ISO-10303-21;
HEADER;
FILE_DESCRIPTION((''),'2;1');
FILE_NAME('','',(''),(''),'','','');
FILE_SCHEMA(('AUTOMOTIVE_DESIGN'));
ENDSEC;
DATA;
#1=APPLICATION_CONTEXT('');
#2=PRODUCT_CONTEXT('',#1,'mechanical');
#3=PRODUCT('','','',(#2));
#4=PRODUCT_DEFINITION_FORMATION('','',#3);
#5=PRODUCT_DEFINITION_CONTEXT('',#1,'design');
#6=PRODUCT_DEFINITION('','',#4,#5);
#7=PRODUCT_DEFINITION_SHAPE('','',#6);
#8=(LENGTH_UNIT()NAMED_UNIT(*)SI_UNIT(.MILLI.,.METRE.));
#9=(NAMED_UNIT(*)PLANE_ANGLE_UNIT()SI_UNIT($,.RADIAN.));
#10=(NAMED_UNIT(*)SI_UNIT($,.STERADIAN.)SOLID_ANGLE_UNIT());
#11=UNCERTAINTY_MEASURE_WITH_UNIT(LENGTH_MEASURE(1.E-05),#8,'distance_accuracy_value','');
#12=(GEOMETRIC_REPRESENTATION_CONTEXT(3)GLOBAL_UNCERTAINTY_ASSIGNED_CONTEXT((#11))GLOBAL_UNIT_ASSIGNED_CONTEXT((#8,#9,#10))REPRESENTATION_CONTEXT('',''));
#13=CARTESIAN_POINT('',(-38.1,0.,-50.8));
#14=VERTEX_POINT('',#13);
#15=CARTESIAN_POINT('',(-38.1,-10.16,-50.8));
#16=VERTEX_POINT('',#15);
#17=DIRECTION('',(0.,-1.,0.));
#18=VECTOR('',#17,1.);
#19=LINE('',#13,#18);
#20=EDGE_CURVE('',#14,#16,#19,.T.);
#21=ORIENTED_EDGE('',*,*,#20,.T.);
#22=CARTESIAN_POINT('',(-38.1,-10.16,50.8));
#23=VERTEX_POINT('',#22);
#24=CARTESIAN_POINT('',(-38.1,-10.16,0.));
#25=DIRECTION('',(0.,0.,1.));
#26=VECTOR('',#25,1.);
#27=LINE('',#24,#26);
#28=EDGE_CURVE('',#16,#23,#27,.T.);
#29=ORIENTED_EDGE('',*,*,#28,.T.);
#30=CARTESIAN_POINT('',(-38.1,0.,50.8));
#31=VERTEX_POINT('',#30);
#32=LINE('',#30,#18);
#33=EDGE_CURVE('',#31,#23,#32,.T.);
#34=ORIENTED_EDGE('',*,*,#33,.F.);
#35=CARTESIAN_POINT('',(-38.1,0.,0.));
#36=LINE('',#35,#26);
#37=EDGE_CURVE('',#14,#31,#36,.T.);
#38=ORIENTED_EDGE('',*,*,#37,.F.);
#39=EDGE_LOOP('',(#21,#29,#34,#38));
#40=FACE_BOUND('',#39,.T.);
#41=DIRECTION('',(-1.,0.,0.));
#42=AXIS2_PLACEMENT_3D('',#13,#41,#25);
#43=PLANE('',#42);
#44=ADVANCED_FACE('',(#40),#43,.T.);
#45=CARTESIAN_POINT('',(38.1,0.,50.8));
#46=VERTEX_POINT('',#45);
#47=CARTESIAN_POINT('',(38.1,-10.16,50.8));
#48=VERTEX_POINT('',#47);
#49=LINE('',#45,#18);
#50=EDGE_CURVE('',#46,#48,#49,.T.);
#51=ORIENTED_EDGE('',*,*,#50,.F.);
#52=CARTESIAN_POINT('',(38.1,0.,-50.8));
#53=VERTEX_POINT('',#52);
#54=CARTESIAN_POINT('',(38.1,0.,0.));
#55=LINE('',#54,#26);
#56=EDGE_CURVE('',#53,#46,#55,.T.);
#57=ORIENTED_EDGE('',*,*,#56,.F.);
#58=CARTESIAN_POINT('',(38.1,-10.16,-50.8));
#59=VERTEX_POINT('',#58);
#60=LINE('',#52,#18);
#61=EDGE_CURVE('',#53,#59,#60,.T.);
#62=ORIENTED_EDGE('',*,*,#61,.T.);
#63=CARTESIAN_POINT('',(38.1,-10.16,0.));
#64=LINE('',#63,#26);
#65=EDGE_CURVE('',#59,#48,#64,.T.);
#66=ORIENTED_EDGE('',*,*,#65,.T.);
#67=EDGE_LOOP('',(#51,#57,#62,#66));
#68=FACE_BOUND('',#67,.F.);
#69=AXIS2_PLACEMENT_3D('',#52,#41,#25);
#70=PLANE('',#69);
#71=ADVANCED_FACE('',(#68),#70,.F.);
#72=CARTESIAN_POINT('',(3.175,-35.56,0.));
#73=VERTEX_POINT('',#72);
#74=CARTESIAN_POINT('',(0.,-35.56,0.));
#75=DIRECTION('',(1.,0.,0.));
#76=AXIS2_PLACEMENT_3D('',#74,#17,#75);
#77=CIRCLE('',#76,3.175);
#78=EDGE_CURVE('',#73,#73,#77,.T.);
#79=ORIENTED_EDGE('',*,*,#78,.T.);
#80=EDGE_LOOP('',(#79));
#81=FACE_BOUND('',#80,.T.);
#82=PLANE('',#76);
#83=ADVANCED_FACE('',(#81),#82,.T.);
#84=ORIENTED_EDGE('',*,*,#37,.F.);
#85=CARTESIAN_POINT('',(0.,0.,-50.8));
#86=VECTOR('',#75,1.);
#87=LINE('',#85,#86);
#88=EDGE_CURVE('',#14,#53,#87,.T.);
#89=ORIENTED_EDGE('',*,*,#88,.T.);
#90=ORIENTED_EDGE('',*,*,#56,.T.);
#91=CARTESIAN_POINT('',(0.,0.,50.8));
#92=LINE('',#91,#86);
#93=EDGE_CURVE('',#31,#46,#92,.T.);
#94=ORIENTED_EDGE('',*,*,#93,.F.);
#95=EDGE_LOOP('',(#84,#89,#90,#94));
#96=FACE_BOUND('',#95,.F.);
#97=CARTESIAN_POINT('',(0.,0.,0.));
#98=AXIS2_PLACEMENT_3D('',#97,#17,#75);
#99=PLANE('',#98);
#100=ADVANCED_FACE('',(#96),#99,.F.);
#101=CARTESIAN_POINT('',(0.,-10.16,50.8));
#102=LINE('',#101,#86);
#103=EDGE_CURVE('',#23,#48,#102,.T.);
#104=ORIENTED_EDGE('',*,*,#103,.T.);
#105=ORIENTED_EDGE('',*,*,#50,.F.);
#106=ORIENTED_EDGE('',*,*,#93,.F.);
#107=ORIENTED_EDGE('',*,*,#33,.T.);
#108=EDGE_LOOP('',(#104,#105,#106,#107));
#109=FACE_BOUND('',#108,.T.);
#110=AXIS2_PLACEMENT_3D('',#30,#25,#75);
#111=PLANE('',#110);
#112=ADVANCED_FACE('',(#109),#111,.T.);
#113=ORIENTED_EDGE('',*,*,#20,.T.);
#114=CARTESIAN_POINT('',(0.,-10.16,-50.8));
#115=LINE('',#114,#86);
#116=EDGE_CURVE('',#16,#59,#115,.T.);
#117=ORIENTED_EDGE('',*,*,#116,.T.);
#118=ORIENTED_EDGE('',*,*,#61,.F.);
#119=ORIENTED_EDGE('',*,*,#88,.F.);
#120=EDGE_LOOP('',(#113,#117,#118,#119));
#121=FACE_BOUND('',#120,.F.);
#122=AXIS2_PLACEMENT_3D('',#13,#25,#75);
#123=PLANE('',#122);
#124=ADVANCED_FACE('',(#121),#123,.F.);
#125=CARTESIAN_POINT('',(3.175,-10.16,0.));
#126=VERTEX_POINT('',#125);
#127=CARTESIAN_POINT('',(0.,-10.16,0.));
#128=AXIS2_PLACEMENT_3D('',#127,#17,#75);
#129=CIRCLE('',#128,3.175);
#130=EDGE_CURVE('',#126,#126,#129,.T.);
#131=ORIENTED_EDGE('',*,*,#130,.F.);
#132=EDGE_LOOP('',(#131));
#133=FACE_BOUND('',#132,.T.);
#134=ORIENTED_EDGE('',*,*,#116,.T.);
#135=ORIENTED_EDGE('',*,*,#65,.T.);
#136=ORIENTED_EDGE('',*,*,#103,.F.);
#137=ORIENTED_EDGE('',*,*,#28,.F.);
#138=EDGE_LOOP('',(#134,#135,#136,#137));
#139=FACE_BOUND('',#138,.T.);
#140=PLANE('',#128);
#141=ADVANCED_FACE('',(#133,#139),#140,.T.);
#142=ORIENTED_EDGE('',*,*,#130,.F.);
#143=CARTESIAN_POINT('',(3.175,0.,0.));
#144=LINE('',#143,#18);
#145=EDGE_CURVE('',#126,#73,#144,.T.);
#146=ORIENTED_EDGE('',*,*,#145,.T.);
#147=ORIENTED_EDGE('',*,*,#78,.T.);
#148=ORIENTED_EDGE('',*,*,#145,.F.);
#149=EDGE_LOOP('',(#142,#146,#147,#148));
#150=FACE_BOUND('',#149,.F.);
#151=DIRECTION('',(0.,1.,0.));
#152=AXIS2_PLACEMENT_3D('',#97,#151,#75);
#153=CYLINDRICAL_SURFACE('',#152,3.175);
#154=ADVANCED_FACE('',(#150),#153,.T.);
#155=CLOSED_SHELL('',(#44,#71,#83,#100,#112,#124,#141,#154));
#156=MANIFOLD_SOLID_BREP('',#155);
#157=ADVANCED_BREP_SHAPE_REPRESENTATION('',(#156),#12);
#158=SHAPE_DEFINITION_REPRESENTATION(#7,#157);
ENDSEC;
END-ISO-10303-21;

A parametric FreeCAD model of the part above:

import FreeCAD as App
import Part
import Sketcher
from FreeCAD import Vector
Q = App.Units.Quantity


def add_polygon(sketch, points):
    """Adds a closed chain of lines whose ends are joined by coincident constraints."""
    first, n = sketch.GeometryCount, len(points)
    for a, b in zip(points, points[1:] + points[:1]):
        sketch.addGeometry(Part.LineSegment(App.Vector(*a, 0), App.Vector(*b, 0)), False)
    for i in range(n):
        sketch.addConstraint(Sketcher.Constraint("Coincident", first + i, 2, first + (i + 1) % n, 1))

doc = App.newDocument("Part")
body = doc.addObject("PartDesign::Body", "Body")

sketch1 = body.newObject("Sketcher::SketchObject", "Sketch")
sketch1.AttachmentSupport = (doc.getObject("XZ_Plane"), [""])
sketch1.MapMode = "FlatFace"
sketch1.addGeometry(Part.Circle(Vector(0, 0, 0), Vector(0, 0, 1), 3.2), False)
sketch1.addConstraint([
    Sketcher.Constraint("Coincident", 0, 3, -1, 1),
    Sketcher.Constraint("Diameter", 0, Q("0.25 in")),
])
pad1 = body.newObject("PartDesign::Pad", "Pad")
pad1.Profile = sketch1
pad1.Length = Q("1.4 in")

sketch2 = body.newObject("Sketcher::SketchObject", "Sketch001")
sketch2.AttachmentSupport = (doc.getObject("XZ_Plane"), [""])
sketch2.MapMode = "FlatFace"
add_polygon(sketch2, [(-38.1, 50.8), (-38.1, -50.8), (38.1, -50.8), (38.1, 50.8)])
sketch2.addGeometry(Part.Circle(Vector(0, 0, 0), Vector(0, 0, 1), 3.2), False)
sketch2.addConstraint([
    Sketcher.Constraint("Vertical", 0),
    Sketcher.Constraint("Horizontal", 1),
    Sketcher.Constraint("Vertical", 2),
    Sketcher.Constraint("Horizontal", 3),
    Sketcher.Constraint("Coincident", 4, 3, -1, 1),
    Sketcher.Constraint("Symmetric", 0, 2, 2, 2, -1, 1),
    Sketcher.Constraint("Diameter", 4, Q("0.25 in")),
    Sketcher.Constraint("DistanceX", 1, 1, 1, 2, Q("3 in")),
    Sketcher.Constraint("DistanceY", 0, 2, 0, 1, Q("4 in")),
])
pad2 = body.newObject("PartDesign::Pad", "Pad001")
pad2.Profile = sketch2
pad2.Length = Q("0.4 in")

doc.recompute()
